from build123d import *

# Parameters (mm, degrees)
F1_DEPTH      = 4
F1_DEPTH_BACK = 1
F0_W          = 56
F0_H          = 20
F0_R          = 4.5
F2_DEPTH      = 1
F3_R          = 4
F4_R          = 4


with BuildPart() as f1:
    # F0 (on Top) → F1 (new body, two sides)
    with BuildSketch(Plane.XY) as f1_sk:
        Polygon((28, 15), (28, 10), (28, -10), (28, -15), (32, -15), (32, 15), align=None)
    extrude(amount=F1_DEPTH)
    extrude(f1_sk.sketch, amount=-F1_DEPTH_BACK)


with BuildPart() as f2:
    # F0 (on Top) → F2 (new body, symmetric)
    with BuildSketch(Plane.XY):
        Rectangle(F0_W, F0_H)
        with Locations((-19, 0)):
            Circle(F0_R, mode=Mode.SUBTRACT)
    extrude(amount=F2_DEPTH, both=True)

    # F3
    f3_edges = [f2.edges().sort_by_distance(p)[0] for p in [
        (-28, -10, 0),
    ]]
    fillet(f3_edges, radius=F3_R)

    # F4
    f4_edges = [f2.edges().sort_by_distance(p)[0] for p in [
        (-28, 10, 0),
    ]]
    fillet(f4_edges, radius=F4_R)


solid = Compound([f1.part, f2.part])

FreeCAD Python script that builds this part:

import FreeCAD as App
import Part
import Sketcher

V = App.Vector
Q = App.Units.Quantity


def edges_at(feature, points):
    """Names of the edges that pass closest to the given points."""
    edges = feature.Shape.Edges
    near = lambda p: min(range(len(edges)), key=lambda i: edges[i].distToShape(Part.Vertex(*p))[0])
    return sorted({f"Edge{near(p) + 1}" for p in points})

doc = App.newDocument("Part")
body = doc.addObject("PartDesign::Body", "Body")

# Sketch on XY plane
sketch1 = body.newObject("Sketcher::SketchObject", "Sketch")
sketch1.AttachmentSupport = (doc.getObject("XY_Plane"), [""])
sketch1.MapMode = "FlatFace"
sketch1.addGeometry([
    Part.LineSegment(V(28, 15, 0), V(28, -15, 0)),
    Part.LineSegment(V(28, -15, 0), V(32, -15, 0)),
    Part.LineSegment(V(32, -15, 0), V(32, 15, 0)),
    Part.LineSegment(V(32, 15, 0), V(28, 15, 0)),
], False)
sketch1.addConstraint([
    Sketcher.Constraint("Coincident", 0, 2, 1, 1),
    Sketcher.Constraint("Coincident", 1, 2, 2, 1),
    Sketcher.Constraint("Coincident", 2, 2, 3, 1),
    Sketcher.Constraint("Coincident", 3, 2, 0, 1),
    Sketcher.Constraint("Vertical", 0),
    Sketcher.Constraint("Horizontal", 1),
    Sketcher.Constraint("Vertical", 2),
    Sketcher.Constraint("Horizontal", 3),
    Sketcher.Constraint("DistanceX", 1, 1, 1, 2, Q("4 mm")),
    Sketcher.Constraint("DistanceY", 0, 2, 0, 1, Q("30 mm")),
    Sketcher.Constraint("DistanceX", -1, 1, 0, 2, Q("28 mm")),
    Sketcher.Constraint("DistanceY", 0, 2, -1, 1, Q("15 mm")),
])
pad1 = body.newObject("PartDesign::Pad", "Pad")
pad1.Profile = sketch1
pad1.Type = "TwoLengths"
pad1.Length = 4
pad1.Length2 = 1
body2 = doc.addObject("PartDesign::Body", "Body001")

# Sketch on XY plane
sketch2 = body2.newObject("Sketcher::SketchObject", "Sketch001")
sketch2.AttachmentSupport = (doc.getObject("XY_Plane001"), [""])
sketch2.MapMode = "FlatFace"
sketch2.addGeometry([
    Part.LineSegment(V(-28, 10, 0), V(-28, -10, 0)),  # 0
    Part.LineSegment(V(-28, -10, 0), V(28, -10, 0)),  # 1
    Part.LineSegment(V(28, -10, 0), V(28, 10, 0)),  # 2
    Part.LineSegment(V(28, 10, 0), V(-28, 10, 0)),  # 3
    Part.Circle(V(-19, 0, 0), V(0, 0, 1), 4.5),  # 4
], False)
sketch2.addConstraint([
    Sketcher.Constraint("Coincident", 0, 2, 1, 1),
    Sketcher.Constraint("Coincident", 1, 2, 2, 1),
    Sketcher.Constraint("Coincident", 2, 2, 3, 1),
    Sketcher.Constraint("Coincident", 3, 2, 0, 1),
    Sketcher.Constraint("Vertical", 0),
    Sketcher.Constraint("Horizontal", 1),
    Sketcher.Constraint("Vertical", 2),
    Sketcher.Constraint("Horizontal", 3),
    Sketcher.Constraint("Symmetric", 0, 2, 2, 2, -1, 1),
    Sketcher.Constraint("PointOnObject", 4, 3, -1),
    Sketcher.Constraint("Diameter", 4, Q("9 mm")),
    Sketcher.Constraint("DistanceX", 1, 1, 1, 2, Q("56 mm")),
    Sketcher.Constraint("DistanceY", 0, 2, 0, 1, Q("20 mm")),
    Sketcher.Constraint("DistanceX", 4, 3, -1, 1, Q("19 mm")),
])
pad2 = body2.newObject("PartDesign::Pad", "Pad001")
pad2.Profile = sketch2
pad2.Length = 2
pad2.Midplane = True
doc.recompute()

fillet = body2.newObject("PartDesign::Fillet", "Fillet")
fillet.Base = (pad2, edges_at(pad2, [(-28, -10, 0)]))
fillet.Radius = 4
doc.recompute()

fillet2 = body2.newObject("PartDesign::Fillet", "Fillet001")
fillet2.Base = (fillet, edges_at(fillet, [(-28, 10, 0)]))
fillet2.Radius = 4

doc.recompute()
